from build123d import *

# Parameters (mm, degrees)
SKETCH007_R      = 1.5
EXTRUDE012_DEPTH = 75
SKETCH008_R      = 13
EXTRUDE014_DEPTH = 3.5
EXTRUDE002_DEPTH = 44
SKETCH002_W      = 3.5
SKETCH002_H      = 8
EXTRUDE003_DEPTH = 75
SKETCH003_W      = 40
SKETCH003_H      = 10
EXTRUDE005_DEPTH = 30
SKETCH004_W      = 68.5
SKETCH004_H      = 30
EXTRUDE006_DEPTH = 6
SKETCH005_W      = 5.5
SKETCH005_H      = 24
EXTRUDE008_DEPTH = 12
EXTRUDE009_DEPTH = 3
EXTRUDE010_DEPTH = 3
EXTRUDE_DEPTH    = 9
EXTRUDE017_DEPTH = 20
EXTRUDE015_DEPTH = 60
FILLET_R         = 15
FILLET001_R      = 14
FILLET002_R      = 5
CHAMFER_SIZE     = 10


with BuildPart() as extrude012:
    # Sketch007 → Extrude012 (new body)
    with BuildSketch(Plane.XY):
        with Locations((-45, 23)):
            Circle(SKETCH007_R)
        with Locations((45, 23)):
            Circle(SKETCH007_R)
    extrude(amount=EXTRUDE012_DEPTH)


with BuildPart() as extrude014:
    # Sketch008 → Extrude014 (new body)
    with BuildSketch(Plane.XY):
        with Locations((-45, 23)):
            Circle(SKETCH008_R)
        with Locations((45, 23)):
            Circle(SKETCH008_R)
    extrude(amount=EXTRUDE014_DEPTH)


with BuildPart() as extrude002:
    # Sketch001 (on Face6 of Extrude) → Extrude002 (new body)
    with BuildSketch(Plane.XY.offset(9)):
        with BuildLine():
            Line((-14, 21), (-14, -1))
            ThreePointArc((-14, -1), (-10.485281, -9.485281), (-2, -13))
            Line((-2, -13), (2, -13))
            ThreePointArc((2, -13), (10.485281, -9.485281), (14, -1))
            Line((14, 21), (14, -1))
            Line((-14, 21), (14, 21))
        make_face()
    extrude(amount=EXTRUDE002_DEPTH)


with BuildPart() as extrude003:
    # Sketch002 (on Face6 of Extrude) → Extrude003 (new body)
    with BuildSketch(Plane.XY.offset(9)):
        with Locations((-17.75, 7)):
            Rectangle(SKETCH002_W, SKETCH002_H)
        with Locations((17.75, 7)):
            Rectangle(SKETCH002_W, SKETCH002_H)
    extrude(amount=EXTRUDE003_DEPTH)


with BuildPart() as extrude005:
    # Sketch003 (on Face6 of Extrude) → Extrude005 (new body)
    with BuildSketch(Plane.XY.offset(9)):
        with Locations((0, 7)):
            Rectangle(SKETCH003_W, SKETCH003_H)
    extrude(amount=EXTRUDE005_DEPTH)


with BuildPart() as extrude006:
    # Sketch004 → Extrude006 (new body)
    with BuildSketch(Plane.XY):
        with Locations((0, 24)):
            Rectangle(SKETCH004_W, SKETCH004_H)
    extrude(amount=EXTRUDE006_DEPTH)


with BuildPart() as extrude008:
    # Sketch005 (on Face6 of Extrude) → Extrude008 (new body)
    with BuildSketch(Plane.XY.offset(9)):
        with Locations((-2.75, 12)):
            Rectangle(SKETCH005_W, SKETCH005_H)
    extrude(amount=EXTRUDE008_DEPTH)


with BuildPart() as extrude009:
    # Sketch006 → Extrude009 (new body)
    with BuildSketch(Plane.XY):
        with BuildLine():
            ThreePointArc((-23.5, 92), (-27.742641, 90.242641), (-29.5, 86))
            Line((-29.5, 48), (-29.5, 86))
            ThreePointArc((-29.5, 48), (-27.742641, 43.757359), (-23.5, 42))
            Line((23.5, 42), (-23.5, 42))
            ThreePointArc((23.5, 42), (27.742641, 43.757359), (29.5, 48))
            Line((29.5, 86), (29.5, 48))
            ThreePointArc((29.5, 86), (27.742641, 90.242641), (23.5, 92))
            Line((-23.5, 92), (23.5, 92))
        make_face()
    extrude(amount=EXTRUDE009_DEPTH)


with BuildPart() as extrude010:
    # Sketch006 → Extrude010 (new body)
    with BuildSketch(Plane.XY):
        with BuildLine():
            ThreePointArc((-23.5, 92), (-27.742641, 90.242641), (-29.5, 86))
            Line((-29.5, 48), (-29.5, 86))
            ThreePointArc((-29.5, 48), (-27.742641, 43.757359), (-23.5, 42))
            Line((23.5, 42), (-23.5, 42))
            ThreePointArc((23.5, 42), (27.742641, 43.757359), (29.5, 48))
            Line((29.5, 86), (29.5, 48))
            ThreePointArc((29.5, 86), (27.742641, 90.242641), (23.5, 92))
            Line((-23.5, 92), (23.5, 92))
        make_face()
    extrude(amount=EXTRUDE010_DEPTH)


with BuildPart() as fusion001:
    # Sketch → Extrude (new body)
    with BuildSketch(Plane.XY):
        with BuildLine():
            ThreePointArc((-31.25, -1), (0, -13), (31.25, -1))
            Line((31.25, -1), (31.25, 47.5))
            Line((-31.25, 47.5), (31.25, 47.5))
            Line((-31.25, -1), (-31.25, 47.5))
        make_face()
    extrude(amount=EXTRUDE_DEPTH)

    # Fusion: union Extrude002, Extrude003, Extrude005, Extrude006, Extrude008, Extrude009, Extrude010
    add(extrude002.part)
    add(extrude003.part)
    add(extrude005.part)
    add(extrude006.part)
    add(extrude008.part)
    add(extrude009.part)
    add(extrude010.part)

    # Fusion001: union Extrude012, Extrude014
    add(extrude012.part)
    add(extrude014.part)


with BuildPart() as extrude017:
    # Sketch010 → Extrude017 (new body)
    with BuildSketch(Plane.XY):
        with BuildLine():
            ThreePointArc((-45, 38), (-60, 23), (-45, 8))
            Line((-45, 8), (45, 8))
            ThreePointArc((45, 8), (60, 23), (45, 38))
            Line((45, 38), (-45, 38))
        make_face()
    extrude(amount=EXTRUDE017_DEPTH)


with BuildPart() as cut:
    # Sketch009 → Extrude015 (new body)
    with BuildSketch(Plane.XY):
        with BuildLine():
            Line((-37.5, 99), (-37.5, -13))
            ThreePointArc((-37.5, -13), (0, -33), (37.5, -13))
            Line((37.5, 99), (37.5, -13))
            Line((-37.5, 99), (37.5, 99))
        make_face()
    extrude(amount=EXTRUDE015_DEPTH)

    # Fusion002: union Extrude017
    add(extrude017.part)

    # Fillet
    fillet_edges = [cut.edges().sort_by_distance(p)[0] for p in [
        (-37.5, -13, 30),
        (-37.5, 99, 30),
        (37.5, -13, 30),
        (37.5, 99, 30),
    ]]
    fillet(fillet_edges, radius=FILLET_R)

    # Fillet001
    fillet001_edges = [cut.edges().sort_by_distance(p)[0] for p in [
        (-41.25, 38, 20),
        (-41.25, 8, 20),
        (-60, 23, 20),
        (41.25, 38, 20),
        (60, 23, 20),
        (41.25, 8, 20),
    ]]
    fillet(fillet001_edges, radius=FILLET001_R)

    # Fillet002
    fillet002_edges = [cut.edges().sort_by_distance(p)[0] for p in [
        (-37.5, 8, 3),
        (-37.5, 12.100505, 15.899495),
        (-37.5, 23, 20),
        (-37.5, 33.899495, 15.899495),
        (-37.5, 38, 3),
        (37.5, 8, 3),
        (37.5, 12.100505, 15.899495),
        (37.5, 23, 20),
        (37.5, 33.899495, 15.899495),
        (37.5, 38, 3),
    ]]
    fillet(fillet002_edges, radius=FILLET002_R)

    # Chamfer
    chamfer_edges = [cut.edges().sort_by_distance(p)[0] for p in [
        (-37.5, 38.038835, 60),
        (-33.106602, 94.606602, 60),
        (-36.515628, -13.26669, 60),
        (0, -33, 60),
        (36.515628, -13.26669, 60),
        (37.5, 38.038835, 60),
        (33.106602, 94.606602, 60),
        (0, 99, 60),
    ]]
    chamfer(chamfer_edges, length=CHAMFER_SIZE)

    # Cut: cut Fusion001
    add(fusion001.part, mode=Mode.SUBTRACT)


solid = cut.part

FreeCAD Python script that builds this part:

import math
import FreeCAD as App
import Part
import Sketcher
from FreeCAD import Vector


def edges_at(feature, points):
    """Names of the edges that pass closest to the given points."""
    edges = feature.Shape.Edges
    near = lambda p: min(range(len(edges)), key=lambda i: edges[i].distToShape(Part.Vertex(*p))[0])
    return sorted({f"Edge{near(p) + 1}" for p in points})

doc = App.newDocument("Part")
body = doc.addObject("PartDesign::Body", "Body")
body.AllowCompound = True

# Sketch on XY plane
sketch1 = body.newObject("Sketcher::SketchObject", "Sketch")
sketch1.AttachmentSupport = (doc.getObject("XY_Plane"), [""])
sketch1.MapMode = "FlatFace"
sketch1.addGeometry(Part.Circle(Vector(-45, 23, 0), Vector(0, 0, 1), 1.5), False)
sketch1.addGeometry(Part.Circle(Vector(45, 23, 0), Vector(0, 0, 1), 1.5), False)
sketch1.addConstraint(Sketcher.Constraint("Equal", 0, 1))
sketch1.addConstraint(Sketcher.Constraint("Symmetric", 0, 3, 1, 3, -2))
sketch1.addConstraint(Sketcher.Constraint("Diameter", 0, 3.0))
sketch1.addConstraint(Sketcher.Constraint("DistanceX", 0, 3, -1, 1, 45.0))
sketch1.addConstraint(Sketcher.Constraint("DistanceY", -1, 1, 0, 3, 23.0))
pad1 = body.newObject("PartDesign::Pad", "Pad")
pad1.Profile = sketch1
pad1.Length = 75
body2 = doc.addObject("PartDesign::Body", "Body001")
body2.AllowCompound = True

# Sketch on XY plane
sketch2 = body2.newObject("Sketcher::SketchObject", "Sketch001")
sketch2.AttachmentSupport = (doc.getObject("XY_Plane001"), [""])
sketch2.MapMode = "FlatFace"
sketch2.addGeometry(Part.Circle(Vector(-45, 23, 0), Vector(0, 0, 1), 13), False)
sketch2.addGeometry(Part.Circle(Vector(45, 23, 0), Vector(0, 0, 1), 13), False)
sketch2.addConstraint(Sketcher.Constraint("Equal", 0, 1))
sketch2.addConstraint(Sketcher.Constraint("Symmetric", 0, 3, 1, 3, -2))
sketch2.addConstraint(Sketcher.Constraint("Diameter", 0, 26.0))
sketch2.addConstraint(Sketcher.Constraint("DistanceX", 0, 3, -1, 1, 45.0))
sketch2.addConstraint(Sketcher.Constraint("DistanceY", -1, 1, 0, 3, 23.0))
pad2 = body2.newObject("PartDesign::Pad", "Pad001")
pad2.Profile = sketch2
pad2.Length = 3.5
body3 = doc.addObject("PartDesign::Body", "Body002")

# Sketch on XY plane
sketch3 = body3.newObject("Sketcher::SketchObject", "Sketch002")
sketch3.AttachmentSupport = (doc.getObject("XY_Plane002"), [""])
sketch3.MapMode = "FlatFace"
sketch3.AttachmentOffset = App.Placement(Vector(0, 0, 9), App.Rotation())
sketch3.addGeometry(Part.LineSegment(Vector(-14, 21, 0), Vector(-14, -1, 0)), False)
sketch3.addGeometry(Part.ArcOfCircle(Part.Circle(Vector(-2, -1, 0), Vector(0, 0, 1), 12), math.radians(-180), math.radians(-90)), False)
sketch3.addGeometry(Part.LineSegment(Vector(-2, -13, 0), Vector(2, -13, 0)), False)
sketch3.addGeometry(Part.ArcOfCircle(Part.Circle(Vector(2, -1, 0), Vector(0, 0, 1), 12), math.radians(-90), math.radians(0)), False)
sketch3.addGeometry(Part.LineSegment(Vector(14, -1, 0), Vector(14, 21, 0)), False)
sketch3.addGeometry(Part.LineSegment(Vector(14, 21, 0), Vector(-14, 21, 0)), False)
sketch3.addConstraint(Sketcher.Constraint("Tangent", 0, 2, 1, 1))
sketch3.addConstraint(Sketcher.Constraint("Tangent", 1, 2, 2, 1))
sketch3.addConstraint(Sketcher.Constraint("Tangent", 2, 2, 3, 1))
sketch3.addConstraint(Sketcher.Constraint("Tangent", 3, 2, 4, 1))
sketch3.addConstraint(Sketcher.Constraint("Coincident", 4, 2, 5, 1))
sketch3.addConstraint(Sketcher.Constraint("Coincident", 5, 2, 0, 1))
sketch3.addConstraint(Sketcher.Constraint("Vertical", 0))
sketch3.addConstraint(Sketcher.Constraint("Horizontal", 2))
sketch3.addConstraint(Sketcher.Constraint("Vertical", 4))
sketch3.addConstraint(Sketcher.Constraint("Horizontal", 5))
sketch3.addConstraint(Sketcher.Constraint("Equal", 1, 3))
sketch3.addConstraint(Sketcher.Constraint("Radius", 1, 12.000001))
sketch3.addConstraint(Sketcher.Constraint("DistanceX", 2, 1, 2, 2, 4.0))
sketch3.addConstraint(Sketcher.Constraint("DistanceY", 0, 2, 0, 1, 22.0))
sketch3.addConstraint(Sketcher.Constraint("DistanceX", 1, 3, -1, 1, 1.999999))
sketch3.addConstraint(Sketcher.Constraint("DistanceY", 1, 3, -1, 1, 0.999999))
pad3 = body3.newObject("PartDesign::Pad", "Pad002")
pad3.Profile = sketch3
pad3.Length = 44
body4 = doc.addObject("PartDesign::Body", "Body003")
body4.AllowCompound = True

# Sketch on XY plane
sketch4 = body4.newObject("Sketcher::SketchObject", "Sketch003")
sketch4.AttachmentSupport = (doc.getObject("XY_Plane003"), [""])
sketch4.MapMode = "FlatFace"
sketch4.AttachmentOffset = App.Placement(Vector(0, 0, 9), App.Rotation())
sketch4.addGeometry(Part.LineSegment(Vector(-19.5, 11, 0), Vector(-19.5, 3, 0)), False)
sketch4.addGeometry(Part.LineSegment(Vector(-19.5, 3, 0), Vector(-16, 3, 0)), False)
sketch4.addGeometry(Part.LineSegment(Vector(-16, 3, 0), Vector(-16, 11, 0)), False)
sketch4.addGeometry(Part.LineSegment(Vector(-16, 11, 0), Vector(-19.5, 11, 0)), False)
sketch4.addGeometry(Part.LineSegment(Vector(16, 11, 0), Vector(16, 3, 0)), False)
sketch4.addGeometry(Part.LineSegment(Vector(16, 3, 0), Vector(19.5, 3, 0)), False)
sketch4.addGeometry(Part.LineSegment(Vector(19.5, 3, 0), Vector(19.5, 11, 0)), False)
sketch4.addGeometry(Part.LineSegment(Vector(19.5, 11, 0), Vector(16, 11, 0)), False)
sketch4.addConstraint(Sketcher.Constraint("Coincident", 0, 2, 1, 1))
sketch4.addConstraint(Sketcher.Constraint("Coincident", 1, 2, 2, 1))
sketch4.addConstraint(Sketcher.Constraint("Coincident", 2, 2, 3, 1))
sketch4.addConstraint(Sketcher.Constraint("Coincident", 3, 2, 0, 1))
sketch4.addConstraint(Sketcher.Constraint("Coincident", 4, 2, 5, 1))
sketch4.addConstraint(Sketcher.Constraint("Coincident", 5, 2, 6, 1))
sketch4.addConstraint(Sketcher.Constraint("Coincident", 6, 2, 7, 1))
sketch4.addConstraint(Sketcher.Constraint("Coincident", 7, 2, 4, 1))
sketch4.addConstraint(Sketcher.Constraint("Vertical", 0))
sketch4.addConstraint(Sketcher.Constraint("Horizontal", 1))
sketch4.addConstraint(Sketcher.Constraint("Vertical", 2))
sketch4.addConstraint(Sketcher.Constraint("Horizontal", 3))
sketch4.addConstraint(Sketcher.Constraint("Vertical", 4))
sketch4.addConstraint(Sketcher.Constraint("Horizontal", 5))
sketch4.addConstraint(Sketcher.Constraint("Vertical", 6))
sketch4.addConstraint(Sketcher.Constraint("Horizontal", 7))
sketch4.addConstraint(Sketcher.Constraint("Symmetric", 1, 2, 4, 2, -2))
sketch4.addConstraint(Sketcher.Constraint("Symmetric", 3, 2, 6, 2, -2))
sketch4.addConstraint(Sketcher.Constraint("DistanceY", 0, 2, 0, 1, 8.0))
sketch4.addConstraint(Sketcher.Constraint("DistanceX", 1, 1, 1, 2, 3.5))
sketch4.addConstraint(Sketcher.Constraint("DistanceY", -1, 1, 0, 2, 3.0))
sketch4.addConstraint(Sketcher.Constraint("DistanceX", 1, 2, -1, 1, 16.0))
pad4 = body4.newObject("PartDesign::Pad", "Pad003")
pad4.Profile = sketch4
pad4.Length = 75
body5 = doc.addObject("PartDesign::Body", "Body004")

# Sketch on XY plane
sketch5 = body5.newObject("Sketcher::SketchObject", "Sketch004")
sketch5.AttachmentSupport = (doc.getObject("XY_Plane004"), [""])
sketch5.MapMode = "FlatFace"
sketch5.AttachmentOffset = App.Placement(Vector(0, 0, 9), App.Rotation())
sketch5.addGeometry(Part.LineSegment(Vector(-20, 12, 0), Vector(-20, 2, 0)), False)
sketch5.addGeometry(Part.LineSegment(Vector(-20, 2, 0), Vector(20, 2, 0)), False)
sketch5.addGeometry(Part.LineSegment(Vector(20, 2, 0), Vector(20, 12, 0)), False)
sketch5.addGeometry(Part.LineSegment(Vector(20, 12, 0), Vector(-20, 12, 0)), False)
sketch5.addConstraint(Sketcher.Constraint("Coincident", 0, 2, 1, 1))
sketch5.addConstraint(Sketcher.Constraint("Coincident", 1, 2, 2, 1))
sketch5.addConstraint(Sketcher.Constraint("Coincident", 2, 2, 3, 1))
sketch5.addConstraint(Sketcher.Constraint("Coincident", 3, 2, 0, 1))
sketch5.addConstraint(Sketcher.Constraint("Vertical", 0))
sketch5.addConstraint(Sketcher.Constraint("Horizontal", 1))
sketch5.addConstraint(Sketcher.Constraint("Vertical", 2))
sketch5.addConstraint(Sketcher.Constraint("Horizontal", 3))
sketch5.addConstraint(Sketcher.Constraint("DistanceX", 1, 1, 1, 2, 40.0))
sketch5.addConstraint(Sketcher.Constraint("DistanceY", 0, 2, 0, 1, 10.0))
sketch5.addConstraint(Sketcher.Constraint("DistanceX", 0, 2, -1, 1, 20.0))
sketch5.addConstraint(Sketcher.Constraint("DistanceY", -1, 1, 0, 2, 2.0))
pad5 = body5.newObject("PartDesign::Pad", "Pad004")
pad5.Profile = sketch5
pad5.Length = 30
body6 = doc.addObject("PartDesign::Body", "Body005")

# Sketch on XY plane
sketch6 = body6.newObject("Sketcher::SketchObject", "Sketch005")
sketch6.AttachmentSupport = (doc.getObject("XY_Plane005"), [""])
sketch6.MapMode = "FlatFace"
sketch6.addGeometry(Part.LineSegment(Vector(-34, 39, 0), Vector(-34, 9, 0)), False)
sketch6.addGeometry(Part.LineSegment(Vector(-34, 9, 0), Vector(34, 9, 0)), False)
sketch6.addGeometry(Part.LineSegment(Vector(34, 9, 0), Vector(34, 39, 0)), False)
sketch6.addGeometry(Part.LineSegment(Vector(34, 39, 0), Vector(-34, 39, 0)), False)
sketch6.addConstraint(Sketcher.Constraint("Coincident", 0, 2, 1, 1))
sketch6.addConstraint(Sketcher.Constraint("Coincident", 1, 2, 2, 1))
sketch6.addConstraint(Sketcher.Constraint("Coincident", 2, 2, 3, 1))
sketch6.addConstraint(Sketcher.Constraint("Coincident", 3, 2, 0, 1))
sketch6.addConstraint(Sketcher.Constraint("Vertical", 0))
sketch6.addConstraint(Sketcher.Constraint("Horizontal", 1))
sketch6.addConstraint(Sketcher.Constraint("Vertical", 2))
sketch6.addConstraint(Sketcher.Constraint("Horizontal", 3))
sketch6.addConstraint(Sketcher.Constraint("DistanceY", 0, 2, 0, 1, 30.0))
sketch6.addConstraint(Sketcher.Constraint("DistanceX", 1, 1, 1, 2, 68.5))
sketch6.addConstraint(Sketcher.Constraint("DistanceY", -1, 1, 0, 2, 9.0))
sketch6.addConstraint(Sketcher.Constraint("DistanceX", 0, 2, -1, 1, 34.25))
pad6 = body6.newObject("PartDesign::Pad", "Pad005")
pad6.Profile = sketch6
pad6.Length = 6
body7 = doc.addObject("PartDesign::Body", "Body006")

# Sketch on XY plane
sketch7 = body7.newObject("Sketcher::SketchObject", "Sketch006")
sketch7.AttachmentSupport = (doc.getObject("XY_Plane006"), [""])
sketch7.MapMode = "FlatFace"
sketch7.AttachmentOffset = App.Placement(Vector(0, 0, 9), App.Rotation())
sketch7.addGeometry(Part.LineSegment(Vector(-6, 24, 0), Vector(-6, 0, 0)), False)
sketch7.addGeometry(Part.LineSegment(Vector(-6, 0, 0), Vector(0, 0, 0)), False)
sketch7.addGeometry(Part.LineSegment(Vector(0, 0, 0), Vector(0, 24, 0)), False)
sketch7.addGeometry(Part.LineSegment(Vector(0, 24, 0), Vector(-6, 24, 0)), False)
sketch7.addConstraint(Sketcher.Constraint("Coincident", 0, 2, 1, 1))
sketch7.addConstraint(Sketcher.Constraint("Coincident", 1, 2, 2, 1))
sketch7.addConstraint(Sketcher.Constraint("Coincident", 2, 2, 3, 1))
sketch7.addConstraint(Sketcher.Constraint("Coincident", 3, 2, 0, 1))
sketch7.addConstraint(Sketcher.Constraint("Vertical", 0))
sketch7.addConstraint(Sketcher.Constraint("Horizontal", 1))
sketch7.addConstraint(Sketcher.Constraint("Vertical", 2))
sketch7.addConstraint(Sketcher.Constraint("Horizontal", 3))
sketch7.addConstraint(Sketcher.Constraint("Coincident", 1, 2, -1, 1))
sketch7.addConstraint(Sketcher.Constraint("DistanceY", 0, 2, 0, 1, 24.0))
sketch7.addConstraint(Sketcher.Constraint("DistanceX", 1, 1, 1, 2, 5.5))
pad7 = body7.newObject("PartDesign::Pad", "Pad006")
pad7.Profile = sketch7
pad7.Length = 12
body8 = doc.addObject("PartDesign::Body", "Body007")

# Sketch on XY plane
sketch8 = body8.newObject("Sketcher::SketchObject", "Sketch007")
sketch8.AttachmentSupport = (doc.getObject("XY_Plane007"), [""])
sketch8.MapMode = "FlatFace"
sketch8.addGeometry(Part.ArcOfCircle(Part.Circle(Vector(-24, 86, 0), Vector(0, 0, 1), 6), math.radians(90), math.radians(180)), False)
sketch8.addGeometry(Part.LineSegment(Vector(-30, 86, 0), Vector(-30, 48, 0)), False)
sketch8.addGeometry(Part.ArcOfCircle(Part.Circle(Vector(-24, 48, 0), Vector(0, 0, 1), 6), math.radians(180), math.radians(270)), False)
sketch8.addGeometry(Part.LineSegment(Vector(-24, 42, 0), Vector(24, 42, 0)), False)
sketch8.addGeometry(Part.ArcOfCircle(Part.Circle(Vector(24, 48, 0), Vector(0, 0, 1), 6), math.radians(-90), math.radians(0)), False)
sketch8.addGeometry(Part.LineSegment(Vector(30, 48, 0), Vector(30, 86, 0)), False)
sketch8.addGeometry(Part.ArcOfCircle(Part.Circle(Vector(24, 86, 0), Vector(0, 0, 1), 6), math.radians(0), math.radians(90)), False)
sketch8.addGeometry(Part.LineSegment(Vector(24, 92, 0), Vector(-24, 92, 0)), False)
sketch8.addConstraint(Sketcher.Constraint("Tangent", 0, 2, 1, 1))
sketch8.addConstraint(Sketcher.Constraint("Tangent", 1, 2, 2, 1))
sketch8.addConstraint(Sketcher.Constraint("Tangent", 2, 2, 3, 1))
sketch8.addConstraint(Sketcher.Constraint("Tangent", 3, 2, 4, 1))
sketch8.addConstraint(Sketcher.Constraint("Tangent", 4, 2, 5, 1))
sketch8.addConstraint(Sketcher.Constraint("Tangent", 5, 2, 6, 1))
sketch8.addConstraint(Sketcher.Constraint("Tangent", 6, 2, 7, 1))
sketch8.addConstraint(Sketcher.Constraint("Tangent", 7, 2, 0, 1))
sketch8.addConstraint(Sketcher.Constraint("Vertical", 1))
sketch8.addConstraint(Sketcher.Constraint("Horizontal", 3))
sketch8.addConstraint(Sketcher.Constraint("Vertical", 5))
sketch8.addConstraint(Sketcher.Constraint("Horizontal", 7))
sketch8.addConstraint(Sketcher.Constraint("Equal", 0, 2))
sketch8.addConstraint(Sketcher.Constraint("Equal", 2, 4))
sketch8.addConstraint(Sketcher.Constraint("Equal", 4, 6))
sketch8.addConstraint(Sketcher.Constraint("Radius", 0, 5.999999))
sketch8.addConstraint(Sketcher.Constraint("DistanceX", 3, 1, 3, 2, 47.0))
sketch8.addConstraint(Sketcher.Constraint("DistanceY", 1, 2, 1, 1, 38.0))
sketch8.addConstraint(Sketcher.Constraint("DistanceY", -1, 1, 0, 3, 86.000001))
sketch8.addConstraint(Sketcher.Constraint("DistanceX", 0, 3, -1, 1, 23.500001))
pad8 = body8.newObject("PartDesign::Pad", "Pad007")
pad8.Profile = sketch8
pad8.Length = 3
body9 = doc.addObject("PartDesign::Body", "Body008")

# Sketch on XY plane
sketch9 = body9.newObject("Sketcher::SketchObject", "Sketch008")
sketch9.AttachmentSupport = (doc.getObject("XY_Plane008"), [""])
sketch9.MapMode = "FlatFace"
sketch9.addGeometry(Part.ArcOfCircle(Part.Circle(Vector(-24, 86, 0), Vector(0, 0, 1), 6), math.radians(90), math.radians(180)), False)
sketch9.addGeometry(Part.LineSegment(Vector(-30, 86, 0), Vector(-30, 48, 0)), False)
sketch9.addGeometry(Part.ArcOfCircle(Part.Circle(Vector(-24, 48, 0), Vector(0, 0, 1), 6), math.radians(180), math.radians(270)), False)
sketch9.addGeometry(Part.LineSegment(Vector(-24, 42, 0), Vector(24, 42, 0)), False)
sketch9.addGeometry(Part.ArcOfCircle(Part.Circle(Vector(24, 48, 0), Vector(0, 0, 1), 6), math.radians(-90), math.radians(0)), False)
sketch9.addGeometry(Part.LineSegment(Vector(30, 48, 0), Vector(30, 86, 0)), False)
sketch9.addGeometry(Part.ArcOfCircle(Part.Circle(Vector(24, 86, 0), Vector(0, 0, 1), 6), math.radians(0), math.radians(90)), False)
sketch9.addGeometry(Part.LineSegment(Vector(24, 92, 0), Vector(-24, 92, 0)), False)
sketch9.addConstraint(Sketcher.Constraint("Tangent", 0, 2, 1, 1))
sketch9.addConstraint(Sketcher.Constraint("Tangent", 1, 2, 2, 1))
sketch9.addConstraint(Sketcher.Constraint("Tangent", 2, 2, 3, 1))
sketch9.addConstraint(Sketcher.Constraint("Tangent", 3, 2, 4, 1))
sketch9.addConstraint(Sketcher.Constraint("Tangent", 4, 2, 5, 1))
sketch9.addConstraint(Sketcher.Constraint("Tangent", 5, 2, 6, 1))
sketch9.addConstraint(Sketcher.Constraint("Tangent", 6, 2, 7, 1))
sketch9.addConstraint(Sketcher.Constraint("Tangent", 7, 2, 0, 1))
sketch9.addConstraint(Sketcher.Constraint("Vertical", 1))
sketch9.addConstraint(Sketcher.Constraint("Horizontal", 3))
sketch9.addConstraint(Sketcher.Constraint("Vertical", 5))
sketch9.addConstraint(Sketcher.Constraint("Horizontal", 7))
sketch9.addConstraint(Sketcher.Constraint("Equal", 0, 2))
sketch9.addConstraint(Sketcher.Constraint("Equal", 2, 4))
sketch9.addConstraint(Sketcher.Constraint("Equal", 4, 6))
sketch9.addConstraint(Sketcher.Constraint("Radius", 0, 5.999999))
sketch9.addConstraint(Sketcher.Constraint("DistanceX", 3, 1, 3, 2, 47.0))
sketch9.addConstraint(Sketcher.Constraint("DistanceY", 1, 2, 1, 1, 38.0))
sketch9.addConstraint(Sketcher.Constraint("DistanceY", -1, 1, 0, 3, 86.000001))
sketch9.addConstraint(Sketcher.Constraint("DistanceX", 0, 3, -1, 1, 23.500001))
pad9 = body9.newObject("PartDesign::Pad", "Pad008")
pad9.Profile = sketch9
pad9.Length = 3
body10 = doc.addObject("PartDesign::Body", "Body009")
body10.AllowCompound = True

# Sketch on XY plane
sketch10 = body10.newObject("Sketcher::SketchObject", "Sketch009")
sketch10.AttachmentSupport = (doc.getObject("XY_Plane009"), [""])
sketch10.MapMode = "FlatFace"
sketch10.addGeometry(Part.ArcOfCircle(Part.Circle(Vector(0, 34, 0), Vector(0, 0, 1), 47), math.radians(-132), math.radians(-48)), False)
sketch10.addGeometry(Part.LineSegment(Vector(31, -1, 0), Vector(31, 48, 0)), False)
sketch10.addGeometry(Part.LineSegment(Vector(31, 48, 0), Vector(-31, 48, 0)), False)
sketch10.addGeometry(Part.LineSegment(Vector(-31, 48, 0), Vector(-31, -1, 0)), False)
sketch10.addConstraint(Sketcher.Constraint("Coincident", 0, 2, 1, 1))
sketch10.addConstraint(Sketcher.Constraint("Coincident", 1, 2, 2, 1))
sketch10.addConstraint(Sketcher.Constraint("Coincident", 2, 2, 3, 1))
sketch10.addConstraint(Sketcher.Constraint("Coincident", 3, 2, 0, 1))
sketch10.addConstraint(Sketcher.Constraint("Vertical", 1))
sketch10.addConstraint(Sketcher.Constraint("Horizontal", 2))
sketch10.addConstraint(Sketcher.Constraint("Vertical", 3))
sketch10.addConstraint(Sketcher.Constraint("Symmetric", 0, 2, 3, 2, -2))
sketch10.addConstraint(Sketcher.Constraint("DistanceX", 2, 2, 2, 1, 62.5))
sketch10.addConstraint(Sketcher.Constraint("DistanceY", 1, 1, 1, 2, 48.5))
sketch10.addConstraint(Sketcher.Constraint("DistanceY", 0, 2, -1, 1, 1.0))
sketch10.addConstraint(Sketcher.Constraint("Radius", 0, 46.690104))
pad10 = body10.newObject("PartDesign::Pad", "Pad009")
pad10.Profile = sketch10
pad10.Length = 9
doc.recompute()

boolean = body10.newObject("PartDesign::Boolean", "Boolean")
boolean.Type = "Fuse"
boolean.addObjects([body3])
doc.recompute()

boolean2 = body10.newObject("PartDesign::Boolean", "Boolean001")
boolean2.Type = "Fuse"
boolean2.addObjects([body4])
doc.recompute()

boolean3 = body10.newObject("PartDesign::Boolean", "Boolean002")
boolean3.Type = "Fuse"
boolean3.addObjects([body5])
doc.recompute()

boolean4 = body10.newObject("PartDesign::Boolean", "Boolean003")
boolean4.Type = "Fuse"
boolean4.addObjects([body6])
doc.recompute()

boolean5 = body10.newObject("PartDesign::Boolean", "Boolean004")
boolean5.Type = "Fuse"
boolean5.addObjects([body7])
doc.recompute()

boolean6 = body10.newObject("PartDesign::Boolean", "Boolean005")
boolean6.Type = "Fuse"
boolean6.addObjects([body8])
doc.recompute()

boolean7 = body10.newObject("PartDesign::Boolean", "Boolean006")
boolean7.Type = "Fuse"
boolean7.addObjects([body9])
doc.recompute()

boolean8 = body10.newObject("PartDesign::Boolean", "Boolean007")
boolean8.Type = "Fuse"
boolean8.addObjects([body])
doc.recompute()

boolean9 = body10.newObject("PartDesign::Boolean", "Boolean008")
boolean9.Type = "Fuse"
boolean9.addObjects([body2])
body11 = doc.addObject("PartDesign::Body", "Body010")

# Sketch on XY plane
sketch11 = body11.newObject("Sketcher::SketchObject", "Sketch010")
sketch11.AttachmentSupport = (doc.getObject("XY_Plane010"), [""])
sketch11.MapMode = "FlatFace"
sketch11.addGeometry(Part.ArcOfCircle(Part.Circle(Vector(-45, 23, 0), Vector(0, 0, 1), 15), math.radians(90), math.radians(270)), False)
sketch11.addGeometry(Part.LineSegment(Vector(-45, 8, 0), Vector(45, 8, 0)), False)
sketch11.addGeometry(Part.ArcOfCircle(Part.Circle(Vector(45, 23, 0), Vector(0, 0, 1), 15), math.radians(-90), math.radians(90)), False)
sketch11.addGeometry(Part.LineSegment(Vector(45, 38, 0), Vector(-45, 38, 0)), False)
sketch11.addConstraint(Sketcher.Constraint("Tangent", 0, 2, 1, 1))
sketch11.addConstraint(Sketcher.Constraint("Tangent", 1, 2, 2, 1))
sketch11.addConstraint(Sketcher.Constraint("Tangent", 2, 2, 3, 1))
sketch11.addConstraint(Sketcher.Constraint("Tangent", 3, 2, 0, 1))
sketch11.addConstraint(Sketcher.Constraint("Horizontal", 1))
sketch11.addConstraint(Sketcher.Constraint("Horizontal", 3))
sketch11.addConstraint(Sketcher.Constraint("Radius", 0, 15.0))
sketch11.addConstraint(Sketcher.Constraint("DistanceX", 1, 1, 1, 2, 90.0))
sketch11.addConstraint(Sketcher.Constraint("DistanceX", 0, 3, -1, 1, 45.0))
sketch11.addConstraint(Sketcher.Constraint("DistanceY", -1, 1, 0, 3, 23.0))
pad11 = body11.newObject("PartDesign::Pad", "Pad010")
pad11.Profile = sketch11
pad11.Length = 20
body12 = doc.addObject("PartDesign::Body", "Body011")

# Sketch on XY plane
sketch12 = body12.newObject("Sketcher::SketchObject", "Sketch011")
sketch12.AttachmentSupport = (doc.getObject("XY_Plane011"), [""])
sketch12.MapMode = "FlatFace"
sketch12.addGeometry(Part.LineSegment(Vector(-38, 99, 0), Vector(-38, -13, 0)), False)
sketch12.addGeometry(Part.ArcOfCircle(Part.Circle(Vector(0, 12, 0), Vector(0, 0, 1), 45), math.radians(-146), math.radians(-34)), False)
sketch12.addGeometry(Part.LineSegment(Vector(38, -13, 0), Vector(38, 99, 0)), False)
sketch12.addGeometry(Part.LineSegment(Vector(38, 99, 0), Vector(-38, 99, 0)), False)
sketch12.addConstraint(Sketcher.Constraint("Coincident", 0, 2, 1, 1))
sketch12.addConstraint(Sketcher.Constraint("Coincident", 1, 2, 2, 1))
sketch12.addConstraint(Sketcher.Constraint("Coincident", 2, 2, 3, 1))
sketch12.addConstraint(Sketcher.Constraint("Coincident", 3, 2, 0, 1))
sketch12.addConstraint(Sketcher.Constraint("Vertical", 0))
sketch12.addConstraint(Sketcher.Constraint("Vertical", 2))
sketch12.addConstraint(Sketcher.Constraint("Horizontal", 3))
sketch12.addConstraint(Sketcher.Constraint("Symmetric", 0, 2, 1, 2, -2))
sketch12.addConstraint(Sketcher.Constraint("DistanceX", 3, 2, 3, 1, 75.0))
sketch12.addConstraint(Sketcher.Constraint("DistanceY", 0, 2, 0, 1, 112.0))
sketch12.addConstraint(Sketcher.Constraint("DistanceY", 0, 2, -1, 1, 13.0))
sketch12.addConstraint(Sketcher.Constraint("Radius", 1, 45.15625))
pad12 = body12.newObject("PartDesign::Pad", "Pad011")
pad12.Profile = sketch12
pad12.Length = 60
doc.recompute()

boolean10 = body12.newObject("PartDesign::Boolean", "Boolean009")
boolean10.Type = "Fuse"
boolean10.addObjects([body11])
doc.recompute()

fillet = body12.newObject("PartDesign::Fillet", "Fillet")
fillet.Base = (boolean10, edges_at(boolean10, [
    (-37.5, -13, 30),
    (-37.5, 99, 30),
    (37.5, -13, 30),
    (37.5, 99, 30),
]))
fillet.Radius = 15
doc.recompute()

fillet2 = body12.newObject("PartDesign::Fillet", "Fillet001")
fillet2.Base = (fillet, edges_at(fillet, [
    (-41.25, 38, 20),
    (-41.25, 8, 20),
    (-60, 23, 20),
    (41.25, 38, 20),
    (60, 23, 20),
    (41.25, 8, 20),
]))
fillet2.Radius = 14
doc.recompute()

fillet3 = body12.newObject("PartDesign::Fillet", "Fillet002")
fillet3.Base = (fillet2, edges_at(fillet2, [
    (-37.5, 8, 3),
    (-37.5, 12.101, 15.899),
    (-37.5, 23, 20),
    (-37.5, 33.899, 15.899),
    (-37.5, 38, 3),
    (37.5, 8, 3),
    (37.5, 12.101, 15.899),
    (37.5, 23, 20),
    (37.5, 33.899, 15.899),
    (37.5, 38, 3),
]))
fillet3.Radius = 5
doc.recompute()

chamfer = body12.newObject("PartDesign::Chamfer", "Chamfer")
chamfer.Base = (fillet3, edges_at(fillet3, [
    (-37.5, 38.039, 60),
    (-33.107, 94.607, 60),
    (-36.516, -13.267, 60),
    (0, -33, 60),
    (36.516, -13.267, 60),
    (37.5, 38.039, 60),
    (33.107, 94.607, 60),
    (0, 99, 60),
]))
chamfer.Size = 10
doc.recompute()

boolean11 = body12.newObject("PartDesign::Boolean", "Boolean010")
boolean11.Type = "Cut"
boolean11.addObjects([body10])

doc.recompute()
